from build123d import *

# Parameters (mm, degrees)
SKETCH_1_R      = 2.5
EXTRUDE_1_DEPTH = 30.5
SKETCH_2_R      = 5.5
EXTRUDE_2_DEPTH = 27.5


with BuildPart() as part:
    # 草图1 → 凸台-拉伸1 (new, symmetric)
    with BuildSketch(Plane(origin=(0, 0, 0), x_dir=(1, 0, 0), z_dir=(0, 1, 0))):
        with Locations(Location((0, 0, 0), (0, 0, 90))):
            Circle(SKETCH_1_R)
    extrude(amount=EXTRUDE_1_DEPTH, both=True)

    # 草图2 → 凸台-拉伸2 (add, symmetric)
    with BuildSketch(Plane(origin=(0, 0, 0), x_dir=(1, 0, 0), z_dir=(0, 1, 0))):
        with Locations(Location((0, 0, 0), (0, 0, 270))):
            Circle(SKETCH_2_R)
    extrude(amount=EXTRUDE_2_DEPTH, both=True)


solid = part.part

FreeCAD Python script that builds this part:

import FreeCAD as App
import Part
import Sketcher
from FreeCAD import Vector
Q = App.Units.Quantity

doc = App.newDocument("Part")
params = doc.addObject("Spreadsheet::Sheet", "Params")
for row, (alias, value) in enumerate([
    ("sketch1_diameter", "5 mm"),
    ("pad1_length", "61 mm"),
    ("sketch2_diameter", "11 mm"),
    ("pad2_length", "55 mm"),
], start=1):
    params.set(f"A{row}", alias)
    params.set(f"B{row}", "=" + value)
    params.setAlias(f"B{row}", alias)

body = doc.addObject("PartDesign::Body", "Body")

sketch1 = doc.addObject("Sketcher::SketchObject", "Sketch")
body.addObject(sketch1)
sketch1.AttachmentSupport = (doc.XZ_Plane, [""])
sketch1.MapMode = "FlatFace"
sketch1.addGeometry(Part.Circle(Vector(0, 0, 0), Vector(0, 0, 1), 2.5), False)
sketch1.addConstraint([
    Sketcher.Constraint("Coincident", 0, 3, -1, 1),
    Sketcher.Constraint("Diameter", 0, Q("5 mm")),
])
sketch1.setExpression("Constraints[1]", "Params.sketch1_diameter")
pad1 = doc.addObject("PartDesign::Pad", "Pad")
body.addObject(pad1)
pad1.Profile = sketch1
pad1.setExpression("Length", "Params.pad1_length")
pad1.Midplane = True

sketch2 = doc.addObject("Sketcher::SketchObject", "Sketch001")
body.addObject(sketch2)
sketch2.AttachmentSupport = (doc.XZ_Plane, [""])
sketch2.MapMode = "FlatFace"
sketch2.addGeometry(Part.Circle(Vector(0, 0, 0), Vector(0, 0, 1), 6), False)
sketch2.addConstraint([
    Sketcher.Constraint("Coincident", 0, 3, -1, 1),
    Sketcher.Constraint("Diameter", 0, Q("11 mm")),
])
sketch2.setExpression("Constraints[1]", "Params.sketch2_diameter")
pad2 = doc.addObject("PartDesign::Pad", "Pad001")
body.addObject(pad2)
pad2.Profile = sketch2
pad2.setExpression("Length", "Params.pad2_length")
pad2.Midplane = True

doc.recompute()
